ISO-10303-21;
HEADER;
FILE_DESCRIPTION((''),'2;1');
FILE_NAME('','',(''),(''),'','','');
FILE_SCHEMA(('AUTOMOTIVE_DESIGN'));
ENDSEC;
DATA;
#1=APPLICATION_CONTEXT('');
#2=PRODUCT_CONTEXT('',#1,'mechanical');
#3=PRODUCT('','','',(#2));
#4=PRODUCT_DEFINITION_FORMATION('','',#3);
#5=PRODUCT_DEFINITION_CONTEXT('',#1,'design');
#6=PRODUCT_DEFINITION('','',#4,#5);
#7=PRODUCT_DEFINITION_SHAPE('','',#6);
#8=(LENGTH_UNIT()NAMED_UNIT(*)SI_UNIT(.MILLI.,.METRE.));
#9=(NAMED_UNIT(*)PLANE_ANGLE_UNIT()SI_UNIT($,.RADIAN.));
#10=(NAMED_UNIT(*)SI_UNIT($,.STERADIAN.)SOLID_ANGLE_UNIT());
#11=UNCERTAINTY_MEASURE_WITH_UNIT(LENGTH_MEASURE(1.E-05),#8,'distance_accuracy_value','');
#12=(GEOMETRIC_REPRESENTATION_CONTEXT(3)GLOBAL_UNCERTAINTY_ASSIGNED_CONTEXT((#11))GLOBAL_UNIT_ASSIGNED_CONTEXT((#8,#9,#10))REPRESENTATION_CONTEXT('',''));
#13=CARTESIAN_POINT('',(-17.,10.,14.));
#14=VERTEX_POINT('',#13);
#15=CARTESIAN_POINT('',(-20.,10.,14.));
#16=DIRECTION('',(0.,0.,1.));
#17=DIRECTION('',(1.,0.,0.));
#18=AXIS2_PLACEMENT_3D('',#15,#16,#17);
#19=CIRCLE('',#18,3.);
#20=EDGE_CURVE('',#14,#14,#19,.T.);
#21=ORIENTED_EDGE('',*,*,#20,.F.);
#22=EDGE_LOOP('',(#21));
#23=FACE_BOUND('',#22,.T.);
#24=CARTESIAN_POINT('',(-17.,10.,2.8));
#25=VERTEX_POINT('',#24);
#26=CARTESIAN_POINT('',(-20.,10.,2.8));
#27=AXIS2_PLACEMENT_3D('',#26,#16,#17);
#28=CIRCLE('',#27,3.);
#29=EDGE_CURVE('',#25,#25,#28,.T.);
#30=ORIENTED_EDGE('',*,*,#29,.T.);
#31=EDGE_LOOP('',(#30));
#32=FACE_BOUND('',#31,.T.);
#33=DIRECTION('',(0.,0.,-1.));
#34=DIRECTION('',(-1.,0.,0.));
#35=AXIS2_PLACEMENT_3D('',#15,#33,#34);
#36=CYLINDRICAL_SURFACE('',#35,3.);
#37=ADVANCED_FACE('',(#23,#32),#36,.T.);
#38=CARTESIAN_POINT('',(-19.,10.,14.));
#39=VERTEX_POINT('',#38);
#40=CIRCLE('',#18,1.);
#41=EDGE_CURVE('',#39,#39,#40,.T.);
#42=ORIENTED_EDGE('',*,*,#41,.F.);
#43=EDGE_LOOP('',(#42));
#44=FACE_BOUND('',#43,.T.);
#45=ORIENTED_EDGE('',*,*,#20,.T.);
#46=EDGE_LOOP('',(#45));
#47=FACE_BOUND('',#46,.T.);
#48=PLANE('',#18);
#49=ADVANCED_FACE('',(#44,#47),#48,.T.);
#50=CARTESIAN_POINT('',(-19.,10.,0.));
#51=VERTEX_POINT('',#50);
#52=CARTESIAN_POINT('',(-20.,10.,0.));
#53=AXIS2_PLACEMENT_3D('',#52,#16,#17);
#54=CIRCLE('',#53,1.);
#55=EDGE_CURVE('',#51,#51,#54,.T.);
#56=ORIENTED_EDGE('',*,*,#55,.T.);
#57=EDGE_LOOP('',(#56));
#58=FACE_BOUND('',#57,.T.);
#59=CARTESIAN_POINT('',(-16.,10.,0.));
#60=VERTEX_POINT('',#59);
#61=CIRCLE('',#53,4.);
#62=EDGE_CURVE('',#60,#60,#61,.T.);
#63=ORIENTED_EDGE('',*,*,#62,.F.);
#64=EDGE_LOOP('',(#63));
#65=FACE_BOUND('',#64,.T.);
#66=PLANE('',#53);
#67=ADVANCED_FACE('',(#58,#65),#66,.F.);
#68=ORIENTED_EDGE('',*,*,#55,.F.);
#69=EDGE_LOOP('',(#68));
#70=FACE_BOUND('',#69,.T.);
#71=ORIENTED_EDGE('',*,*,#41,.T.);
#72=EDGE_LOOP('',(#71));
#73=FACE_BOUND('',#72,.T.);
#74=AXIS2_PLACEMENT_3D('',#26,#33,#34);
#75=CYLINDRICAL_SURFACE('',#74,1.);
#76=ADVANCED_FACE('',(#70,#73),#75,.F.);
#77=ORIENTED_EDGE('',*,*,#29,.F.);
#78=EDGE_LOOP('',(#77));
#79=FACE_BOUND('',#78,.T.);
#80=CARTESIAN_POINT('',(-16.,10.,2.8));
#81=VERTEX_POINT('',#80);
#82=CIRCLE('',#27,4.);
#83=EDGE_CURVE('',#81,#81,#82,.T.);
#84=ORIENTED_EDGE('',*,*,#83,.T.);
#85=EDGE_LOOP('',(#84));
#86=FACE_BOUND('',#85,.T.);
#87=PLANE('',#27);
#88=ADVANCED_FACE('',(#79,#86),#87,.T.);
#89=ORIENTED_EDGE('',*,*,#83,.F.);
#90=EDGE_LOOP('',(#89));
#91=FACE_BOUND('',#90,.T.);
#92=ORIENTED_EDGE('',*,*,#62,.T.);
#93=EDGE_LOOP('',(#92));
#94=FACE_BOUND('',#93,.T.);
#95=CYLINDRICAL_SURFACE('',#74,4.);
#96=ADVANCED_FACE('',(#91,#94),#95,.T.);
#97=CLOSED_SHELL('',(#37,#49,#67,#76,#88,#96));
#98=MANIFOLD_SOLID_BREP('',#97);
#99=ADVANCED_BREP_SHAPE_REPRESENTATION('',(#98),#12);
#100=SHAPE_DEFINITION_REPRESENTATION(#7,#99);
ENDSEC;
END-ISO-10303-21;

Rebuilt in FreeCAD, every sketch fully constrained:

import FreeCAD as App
import Part
import Sketcher
from FreeCAD import Vector

doc = App.newDocument("Part")
body = doc.addObject("PartDesign::Body", "Body")

# Sketch on XY plane
sketch1 = body.newObject("Sketcher::SketchObject", "Sketch")
sketch1.AttachmentSupport = (doc.getObject("XY_Plane"), [""])
sketch1.MapMode = "FlatFace"
sketch1.addGeometry([
    Part.Circle(Vector(-20, 10, 0), Vector(0, 0, 1), 4),
    Part.Circle(Vector(-20, 10, 0), Vector(0, 0, 1), 1),
], False)
sketch1.addConstraint([
    Sketcher.Constraint("Coincident", 1, 3, 0, 3),
    Sketcher.Constraint("Diameter", 0, 8.0),
    Sketcher.Constraint("Diameter", 1, 2.0),
    Sketcher.Constraint("DistanceX", 0, 3, -1, 1, 20.0),
    Sketcher.Constraint("DistanceY", -1, 1, 0, 3, 10.0),
])
pad1 = body.newObject("PartDesign::Pad", "Pad")
pad1.Profile = sketch1
pad1.Length = 2.8

# Sketch on XY plane
sketch2 = body.newObject("Sketcher::SketchObject", "Sketch001")
sketch2.AttachmentSupport = (doc.getObject("XY_Plane"), [""])
sketch2.MapMode = "FlatFace"
sketch2.AttachmentOffset = App.Placement(Vector(0, 0, 2.8), App.Rotation())
sketch2.addGeometry([
    Part.Circle(Vector(-20, 10, 0), Vector(0, 0, 1), 3),
    Part.Circle(Vector(-20, 10, 0), Vector(0, 0, 1), 1),
], False)
sketch2.addConstraint([
    Sketcher.Constraint("Coincident", 1, 3, 0, 3),
    Sketcher.Constraint("Diameter", 0, 6.0),
    Sketcher.Constraint("Diameter", 1, 2.0),
    Sketcher.Constraint("DistanceX", 0, 3, -1, 1, 20.0),
    Sketcher.Constraint("DistanceY", -1, 1, 0, 3, 10.0),
])
pad2 = body.newObject("PartDesign::Pad", "Pad001")
pad2.Profile = sketch2
pad2.Length = 11.2

doc.recompute()
